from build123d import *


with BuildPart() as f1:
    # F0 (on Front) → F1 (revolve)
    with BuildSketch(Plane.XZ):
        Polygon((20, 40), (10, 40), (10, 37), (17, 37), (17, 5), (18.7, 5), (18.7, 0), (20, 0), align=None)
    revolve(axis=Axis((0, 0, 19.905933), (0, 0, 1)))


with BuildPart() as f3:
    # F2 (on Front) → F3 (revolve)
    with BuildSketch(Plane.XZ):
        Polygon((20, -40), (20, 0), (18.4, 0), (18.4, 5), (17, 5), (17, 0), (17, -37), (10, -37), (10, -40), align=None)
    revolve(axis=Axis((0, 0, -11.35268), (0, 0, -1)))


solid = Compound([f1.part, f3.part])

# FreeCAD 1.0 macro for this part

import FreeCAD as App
import Part
import Sketcher
from FreeCAD import Vector

doc = App.newDocument("Part")
body = doc.addObject("PartDesign::Body", "Body")

# Sketch on XZ plane
sketch1 = body.newObject("Sketcher::SketchObject", "Sketch")
sketch1.AttachmentSupport = (doc.getObject("XZ_Plane"), [""])
sketch1.MapMode = "FlatFace"
sketch1.addGeometry([
    Part.LineSegment(Vector(20, 40, 0), Vector(10, 40, 0)),  # 0
    Part.LineSegment(Vector(10, 40, 0), Vector(10, 37, 0)),  # 1
    Part.LineSegment(Vector(10, 37, 0), Vector(17, 37, 0)),  # 2
    Part.LineSegment(Vector(17, 37, 0), Vector(17, 5, 0)),  # 3
    Part.LineSegment(Vector(17, 5, 0), Vector(18.7, 5, 0)),  # 4
    Part.LineSegment(Vector(18.7, 5, 0), Vector(18.7, 0, 0)),  # 5
    Part.LineSegment(Vector(18.7, 0, 0), Vector(20, 0, 0)),  # 6
    Part.LineSegment(Vector(20, 0, 0), Vector(20, 40, 0)),  # 7
], False)
sketch1.addConstraint([
    Sketcher.Constraint("Coincident", 0, 2, 1, 1),
    Sketcher.Constraint("Coincident", 1, 2, 2, 1),
    Sketcher.Constraint("Coincident", 2, 2, 3, 1),
    Sketcher.Constraint("Coincident", 3, 2, 4, 1),
    Sketcher.Constraint("Coincident", 4, 2, 5, 1),
    Sketcher.Constraint("Coincident", 5, 2, 6, 1),
    Sketcher.Constraint("Coincident", 6, 2, 7, 1),
    Sketcher.Constraint("Coincident", 7, 2, 0, 1),
    Sketcher.Constraint("Horizontal", 0),
    Sketcher.Constraint("Vertical", 1),
    Sketcher.Constraint("Horizontal", 2),
    Sketcher.Constraint("Vertical", 3),
    Sketcher.Constraint("Horizontal", 4),
    Sketcher.Constraint("Vertical", 5),
    Sketcher.Constraint("Horizontal", 6),
    Sketcher.Constraint("Vertical", 7),
    Sketcher.Constraint("PointOnObject", 5, 2, -1),
    Sketcher.Constraint("DistanceX", 0, 2, 0, 1, 10.0),
    Sketcher.Constraint("DistanceX", 2, 1, 2, 2, 7.0),
    Sketcher.Constraint("DistanceY", 1, 2, 1, 1, 3.0),
    Sketcher.Constraint("DistanceY", 3, 2, 3, 1, 32.0),
    Sketcher.Constraint("DistanceY", 5, 2, 5, 1, 5.0),
    Sketcher.Constraint("DistanceX", 4, 1, 4, 2, 1.7),
    Sketcher.Constraint("DistanceX", -1, 1, 0, 2, 10.0),
])
revolution = body.newObject("PartDesign::Revolution", "Revolution")
revolution.Profile = sketch1
revolution.ReferenceAxis = (sketch1, ["V_Axis"])
revolution.Angle = 360
body2 = doc.addObject("PartDesign::Body", "Body001")

# Sketch on XZ plane
sketch2 = body2.newObject("Sketcher::SketchObject", "Sketch001")
sketch2.AttachmentSupport = (doc.getObject("XZ_Plane001"), [""])
sketch2.MapMode = "FlatFace"
sketch2.addGeometry([
    Part.LineSegment(Vector(20, -40, 0), Vector(20, 0, 0)),  # 0
    Part.LineSegment(Vector(20, 0, 0), Vector(18.4, 0, 0)),  # 1
    Part.LineSegment(Vector(18.4, 0, 0), Vector(18.4, 5, 0)),  # 2
    Part.LineSegment(Vector(18.4, 5, 0), Vector(17, 5, 0)),  # 3
    Part.LineSegment(Vector(17, 5, 0), Vector(17, -37, 0)),  # 4
    Part.LineSegment(Vector(17, -37, 0), Vector(10, -37, 0)),  # 5
    Part.LineSegment(Vector(10, -37, 0), Vector(10, -40, 0)),  # 6
    Part.LineSegment(Vector(10, -40, 0), Vector(20, -40, 0)),  # 7
], False)
sketch2.addConstraint([
    Sketcher.Constraint("Coincident", 0, 2, 1, 1),
    Sketcher.Constraint("Coincident", 1, 2, 2, 1),
    Sketcher.Constraint("Coincident", 2, 2, 3, 1),
    Sketcher.Constraint("Coincident", 3, 2, 4, 1),
    Sketcher.Constraint("Coincident", 4, 2, 5, 1),
    Sketcher.Constraint("Coincident", 5, 2, 6, 1),
    Sketcher.Constraint("Coincident", 6, 2, 7, 1),
    Sketcher.Constraint("Coincident", 7, 2, 0, 1),
    Sketcher.Constraint("Vertical", 0),
    Sketcher.Constraint("Horizontal", 1),
    Sketcher.Constraint("Vertical", 2),
    Sketcher.Constraint("Horizontal", 3),
    Sketcher.Constraint("Vertical", 4),
    Sketcher.Constraint("Horizontal", 5),
    Sketcher.Constraint("Vertical", 6),
    Sketcher.Constraint("Horizontal", 7),
    Sketcher.Constraint("PointOnObject", 0, 2, -1),
    Sketcher.Constraint("DistanceX", 5, 2, 5, 1, 7.0),
    Sketcher.Constraint("DistanceX", 7, 1, 7, 2, 10.0),
    Sketcher.Constraint("DistanceY", 0, 1, 0, 2, 40.0),
    Sketcher.Constraint("DistanceY", 2, 1, 2, 2, 5.0),
    Sketcher.Constraint("DistanceY", 4, 2, 4, 1, 42.0),
    Sketcher.Constraint("DistanceX", 1, 2, 1, 1, 1.6),
    Sketcher.Constraint("DistanceX", -1, 1, 0, 2, 20.0),
])
revolution2 = body2.newObject("PartDesign::Revolution", "Revolution001")
revolution2.Profile = sketch2
revolution2.ReferenceAxis = (sketch2, ["V_Axis"])
revolution2.Angle = 360

doc.recompute()
